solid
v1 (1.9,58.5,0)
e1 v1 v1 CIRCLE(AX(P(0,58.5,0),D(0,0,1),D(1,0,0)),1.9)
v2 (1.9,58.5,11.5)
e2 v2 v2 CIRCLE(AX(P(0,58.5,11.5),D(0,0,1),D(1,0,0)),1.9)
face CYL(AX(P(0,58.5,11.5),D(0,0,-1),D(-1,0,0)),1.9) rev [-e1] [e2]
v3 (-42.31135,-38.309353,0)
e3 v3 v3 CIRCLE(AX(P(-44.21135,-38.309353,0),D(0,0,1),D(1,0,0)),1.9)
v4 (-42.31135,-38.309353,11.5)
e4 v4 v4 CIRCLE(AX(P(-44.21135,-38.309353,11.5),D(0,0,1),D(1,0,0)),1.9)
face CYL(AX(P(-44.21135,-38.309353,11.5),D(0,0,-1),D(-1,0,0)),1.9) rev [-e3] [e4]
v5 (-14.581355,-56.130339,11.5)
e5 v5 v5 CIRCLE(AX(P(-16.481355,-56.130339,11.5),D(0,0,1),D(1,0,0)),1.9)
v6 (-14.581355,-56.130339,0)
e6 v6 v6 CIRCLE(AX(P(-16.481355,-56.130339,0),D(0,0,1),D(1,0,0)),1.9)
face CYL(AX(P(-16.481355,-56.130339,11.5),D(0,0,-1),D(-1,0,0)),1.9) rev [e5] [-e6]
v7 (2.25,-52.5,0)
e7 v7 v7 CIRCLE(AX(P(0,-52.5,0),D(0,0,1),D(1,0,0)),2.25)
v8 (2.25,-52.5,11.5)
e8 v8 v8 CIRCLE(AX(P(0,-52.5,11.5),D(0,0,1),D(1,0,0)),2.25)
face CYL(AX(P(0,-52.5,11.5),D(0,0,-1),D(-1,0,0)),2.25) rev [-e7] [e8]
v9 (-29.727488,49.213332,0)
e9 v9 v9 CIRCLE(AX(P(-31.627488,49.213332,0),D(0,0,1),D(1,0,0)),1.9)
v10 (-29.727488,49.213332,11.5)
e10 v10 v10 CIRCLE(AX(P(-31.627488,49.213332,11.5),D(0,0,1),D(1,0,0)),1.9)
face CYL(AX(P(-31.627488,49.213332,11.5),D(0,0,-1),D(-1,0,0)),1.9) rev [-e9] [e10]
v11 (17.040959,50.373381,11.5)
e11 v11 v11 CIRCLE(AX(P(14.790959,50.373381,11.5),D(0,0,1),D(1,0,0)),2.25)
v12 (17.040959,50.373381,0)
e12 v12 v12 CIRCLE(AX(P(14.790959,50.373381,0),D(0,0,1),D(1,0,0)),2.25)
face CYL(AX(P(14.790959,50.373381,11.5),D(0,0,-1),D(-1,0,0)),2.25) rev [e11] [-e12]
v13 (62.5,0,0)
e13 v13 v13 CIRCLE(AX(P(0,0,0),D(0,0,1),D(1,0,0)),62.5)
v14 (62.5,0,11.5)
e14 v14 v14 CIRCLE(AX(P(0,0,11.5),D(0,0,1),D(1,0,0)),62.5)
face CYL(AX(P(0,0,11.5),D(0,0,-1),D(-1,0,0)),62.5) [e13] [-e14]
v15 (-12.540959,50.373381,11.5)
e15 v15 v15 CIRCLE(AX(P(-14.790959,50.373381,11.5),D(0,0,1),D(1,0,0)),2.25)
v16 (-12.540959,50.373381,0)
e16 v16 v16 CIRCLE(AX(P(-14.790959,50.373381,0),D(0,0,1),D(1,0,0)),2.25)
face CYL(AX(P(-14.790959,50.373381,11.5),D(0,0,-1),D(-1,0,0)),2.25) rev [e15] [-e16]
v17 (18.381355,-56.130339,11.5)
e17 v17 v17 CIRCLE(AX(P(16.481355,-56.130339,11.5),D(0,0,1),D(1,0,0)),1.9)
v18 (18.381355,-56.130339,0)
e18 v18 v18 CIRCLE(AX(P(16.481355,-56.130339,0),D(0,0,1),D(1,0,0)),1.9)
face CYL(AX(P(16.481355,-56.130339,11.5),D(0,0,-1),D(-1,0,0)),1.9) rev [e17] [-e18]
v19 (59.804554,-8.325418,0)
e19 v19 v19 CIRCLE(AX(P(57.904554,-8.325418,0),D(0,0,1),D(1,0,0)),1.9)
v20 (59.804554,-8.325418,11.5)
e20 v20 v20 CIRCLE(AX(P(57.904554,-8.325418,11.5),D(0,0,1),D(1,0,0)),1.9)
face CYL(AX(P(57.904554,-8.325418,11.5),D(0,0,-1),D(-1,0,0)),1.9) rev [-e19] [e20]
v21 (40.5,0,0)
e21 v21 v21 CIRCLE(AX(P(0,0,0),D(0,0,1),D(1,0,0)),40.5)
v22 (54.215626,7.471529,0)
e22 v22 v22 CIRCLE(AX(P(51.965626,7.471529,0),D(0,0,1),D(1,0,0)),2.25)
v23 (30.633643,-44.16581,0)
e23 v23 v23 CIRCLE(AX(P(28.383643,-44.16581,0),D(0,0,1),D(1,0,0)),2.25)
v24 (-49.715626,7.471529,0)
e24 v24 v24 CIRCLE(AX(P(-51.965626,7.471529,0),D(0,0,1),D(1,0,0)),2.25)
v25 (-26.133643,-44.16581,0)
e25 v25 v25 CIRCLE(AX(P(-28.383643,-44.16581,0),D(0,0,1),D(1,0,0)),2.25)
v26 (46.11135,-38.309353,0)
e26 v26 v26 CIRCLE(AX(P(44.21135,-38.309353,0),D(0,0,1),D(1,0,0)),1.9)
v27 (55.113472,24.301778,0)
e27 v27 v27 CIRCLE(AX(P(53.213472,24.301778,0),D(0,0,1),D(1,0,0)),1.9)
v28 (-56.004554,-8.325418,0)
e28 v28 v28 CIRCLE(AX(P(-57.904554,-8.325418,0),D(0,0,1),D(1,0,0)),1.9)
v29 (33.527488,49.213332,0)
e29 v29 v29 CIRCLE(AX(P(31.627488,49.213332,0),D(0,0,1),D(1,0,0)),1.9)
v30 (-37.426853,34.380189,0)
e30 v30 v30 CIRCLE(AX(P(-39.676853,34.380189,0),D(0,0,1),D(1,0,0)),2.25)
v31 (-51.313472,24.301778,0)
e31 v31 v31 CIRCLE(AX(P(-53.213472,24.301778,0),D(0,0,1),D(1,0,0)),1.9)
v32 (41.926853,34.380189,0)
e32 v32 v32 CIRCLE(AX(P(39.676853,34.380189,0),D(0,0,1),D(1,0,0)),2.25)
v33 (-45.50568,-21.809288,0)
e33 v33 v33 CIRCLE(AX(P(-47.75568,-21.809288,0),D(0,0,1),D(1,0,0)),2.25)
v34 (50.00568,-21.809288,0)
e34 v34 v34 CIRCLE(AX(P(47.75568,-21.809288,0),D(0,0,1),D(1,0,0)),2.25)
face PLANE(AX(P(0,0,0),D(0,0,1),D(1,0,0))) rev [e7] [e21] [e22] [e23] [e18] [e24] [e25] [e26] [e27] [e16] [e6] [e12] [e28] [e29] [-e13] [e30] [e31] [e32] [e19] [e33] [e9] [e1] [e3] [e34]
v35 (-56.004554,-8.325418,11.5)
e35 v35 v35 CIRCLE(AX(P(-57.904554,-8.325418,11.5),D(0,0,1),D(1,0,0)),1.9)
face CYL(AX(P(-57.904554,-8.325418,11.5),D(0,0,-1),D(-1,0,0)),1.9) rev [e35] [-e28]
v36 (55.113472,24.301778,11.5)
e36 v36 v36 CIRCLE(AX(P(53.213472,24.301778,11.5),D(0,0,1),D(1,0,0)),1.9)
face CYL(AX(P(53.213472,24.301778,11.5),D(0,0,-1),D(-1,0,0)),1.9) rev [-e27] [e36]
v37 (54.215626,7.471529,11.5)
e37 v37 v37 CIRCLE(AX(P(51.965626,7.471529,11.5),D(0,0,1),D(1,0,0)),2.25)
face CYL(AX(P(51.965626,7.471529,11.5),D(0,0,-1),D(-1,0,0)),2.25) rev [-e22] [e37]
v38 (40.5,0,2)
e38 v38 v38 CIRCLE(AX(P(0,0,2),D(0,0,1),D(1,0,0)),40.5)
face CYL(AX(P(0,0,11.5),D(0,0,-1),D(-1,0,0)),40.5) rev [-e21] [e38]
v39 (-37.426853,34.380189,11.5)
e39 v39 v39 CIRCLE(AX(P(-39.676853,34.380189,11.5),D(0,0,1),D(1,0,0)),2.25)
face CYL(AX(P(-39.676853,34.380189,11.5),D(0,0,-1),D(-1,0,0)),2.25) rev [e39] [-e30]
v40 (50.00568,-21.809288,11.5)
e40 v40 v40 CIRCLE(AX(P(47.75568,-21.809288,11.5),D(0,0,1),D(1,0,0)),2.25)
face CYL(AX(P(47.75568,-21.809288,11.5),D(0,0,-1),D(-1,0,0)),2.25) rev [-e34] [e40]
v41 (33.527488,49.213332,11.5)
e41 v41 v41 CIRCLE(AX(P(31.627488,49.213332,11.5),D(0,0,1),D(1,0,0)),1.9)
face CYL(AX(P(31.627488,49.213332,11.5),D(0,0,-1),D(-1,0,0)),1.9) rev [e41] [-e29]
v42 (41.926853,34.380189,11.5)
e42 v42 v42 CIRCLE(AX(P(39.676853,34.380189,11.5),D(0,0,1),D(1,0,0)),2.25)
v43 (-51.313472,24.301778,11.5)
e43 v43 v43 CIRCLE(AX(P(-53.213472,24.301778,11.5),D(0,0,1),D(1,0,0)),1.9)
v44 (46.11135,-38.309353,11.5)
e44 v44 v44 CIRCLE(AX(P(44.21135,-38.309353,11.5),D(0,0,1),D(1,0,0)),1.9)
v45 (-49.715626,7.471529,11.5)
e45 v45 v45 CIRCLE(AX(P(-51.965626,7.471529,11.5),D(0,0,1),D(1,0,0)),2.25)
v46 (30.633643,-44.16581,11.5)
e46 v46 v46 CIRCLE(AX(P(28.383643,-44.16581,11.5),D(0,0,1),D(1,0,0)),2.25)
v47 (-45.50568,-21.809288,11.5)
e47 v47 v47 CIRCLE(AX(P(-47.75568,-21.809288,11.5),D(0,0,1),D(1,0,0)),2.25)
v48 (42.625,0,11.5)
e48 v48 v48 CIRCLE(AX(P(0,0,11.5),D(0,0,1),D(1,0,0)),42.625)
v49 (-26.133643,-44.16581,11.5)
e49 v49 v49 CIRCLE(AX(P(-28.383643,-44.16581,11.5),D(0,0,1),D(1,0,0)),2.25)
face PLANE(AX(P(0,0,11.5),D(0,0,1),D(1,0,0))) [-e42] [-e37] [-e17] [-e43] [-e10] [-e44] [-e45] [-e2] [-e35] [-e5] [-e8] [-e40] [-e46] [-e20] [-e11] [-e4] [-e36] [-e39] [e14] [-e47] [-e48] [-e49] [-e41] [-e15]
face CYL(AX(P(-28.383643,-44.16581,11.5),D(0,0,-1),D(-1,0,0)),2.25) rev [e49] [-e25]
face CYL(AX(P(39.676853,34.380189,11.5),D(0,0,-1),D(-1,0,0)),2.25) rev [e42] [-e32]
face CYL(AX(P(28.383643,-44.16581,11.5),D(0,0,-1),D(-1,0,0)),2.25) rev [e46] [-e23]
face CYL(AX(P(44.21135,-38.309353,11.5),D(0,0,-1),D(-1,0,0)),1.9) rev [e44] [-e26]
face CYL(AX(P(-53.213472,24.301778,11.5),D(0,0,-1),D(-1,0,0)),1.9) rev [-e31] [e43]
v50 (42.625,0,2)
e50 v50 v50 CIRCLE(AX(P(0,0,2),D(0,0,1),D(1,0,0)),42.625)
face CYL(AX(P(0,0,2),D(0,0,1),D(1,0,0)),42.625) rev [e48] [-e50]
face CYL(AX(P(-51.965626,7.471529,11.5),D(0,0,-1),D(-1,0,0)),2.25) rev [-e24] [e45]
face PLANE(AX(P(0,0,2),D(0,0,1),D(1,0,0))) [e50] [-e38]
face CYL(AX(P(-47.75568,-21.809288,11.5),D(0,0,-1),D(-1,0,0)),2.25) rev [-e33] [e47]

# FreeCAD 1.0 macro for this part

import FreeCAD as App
import Part
import Sketcher
Q = App.Units.Quantity

doc = App.newDocument("Part")
body = doc.addObject("PartDesign::Body", "Body")

sketch1 = body.newObject("Sketcher::SketchObject", "Sketch")
sketch1.AttachmentSupport = (doc.getObject("XY_Plane"), [""])
sketch1.MapMode = "FlatFace"
sketch1.addGeometry([
    Part.Circle(App.Vector(0, 0, 0), App.Vector(0, 0, 1), 62.5),
    Part.Circle(App.Vector(-44.21135, -38.309353, 0), App.Vector(0, 0, 1), 1.9),
    Part.Circle(App.Vector(-16.481355, -56.130339, 0), App.Vector(0, 0, 1), 1.9),
    Part.Circle(App.Vector(-28.383643, -44.16581, 0), App.Vector(0, 0, 1), 2.25),
    Part.Circle(App.Vector(0, -52.5, 0), App.Vector(0, 0, 1), 2.25),
    Part.Circle(App.Vector(-47.75568, -21.809288, 0), App.Vector(0, 0, 1), 2.25),
    Part.Circle(App.Vector(-57.904554, -8.325418, 0), App.Vector(0, 0, 1), 1.9),
    Part.Circle(App.Vector(0, 0, 0), App.Vector(0, 0, 1), 40.5),
    Part.Circle(App.Vector(16.481355, -56.130339, 0), App.Vector(0, 0, 1), 1.9),
    Part.Circle(App.Vector(28.383643, -44.16581, 0), App.Vector(0, 0, 1), 2.25),
    Part.Circle(App.Vector(44.21135, -38.309353, 0), App.Vector(0, 0, 1), 1.9),
    Part.Circle(App.Vector(47.75568, -21.809288, 0), App.Vector(0, 0, 1), 2.25),
    Part.Circle(App.Vector(57.904554, -8.325418, 0), App.Vector(0, 0, 1), 1.9),
    Part.Circle(App.Vector(-51.965626, 7.471529, 0), App.Vector(0, 0, 1), 2.25),
    Part.Circle(App.Vector(-53.213472, 24.301778, 0), App.Vector(0, 0, 1), 1.9),
    Part.Circle(App.Vector(-39.676853, 34.380189, 0), App.Vector(0, 0, 1), 2.25),
    Part.Circle(App.Vector(-31.627488, 49.213332, 0), App.Vector(0, 0, 1), 1.9),
    Part.Circle(App.Vector(-14.790959, 50.373381, 0), App.Vector(0, 0, 1), 2.25),
    Part.Circle(App.Vector(0, 58.5, 0), App.Vector(0, 0, 1), 1.9),
    Part.Circle(App.Vector(51.965626, 7.471529, 0), App.Vector(0, 0, 1), 2.25),
    Part.Circle(App.Vector(53.213472, 24.301778, 0), App.Vector(0, 0, 1), 1.9),
    Part.Circle(App.Vector(14.790959, 50.373381, 0), App.Vector(0, 0, 1), 2.25),
    Part.Circle(App.Vector(39.676853, 34.380189, 0), App.Vector(0, 0, 1), 2.25),
    Part.Circle(App.Vector(31.627488, 49.213332, 0), App.Vector(0, 0, 1), 1.9),
], False)
sketch1.addConstraint([
    Sketcher.Constraint("Coincident", 0, 3, -1, 1),
    Sketcher.Constraint("Coincident", 7, 3, -1, 1),
    Sketcher.Constraint("Equal", 1, 2),
    Sketcher.Constraint("Equal", 3, 4),
    Sketcher.Constraint("Equal", 4, 5),
    Sketcher.Constraint("Equal", 2, 6),
    Sketcher.Constraint("Equal", 6, 8),
    Sketcher.Constraint("Equal", 5, 9),
    Sketcher.Constraint("Equal", 8, 10),
    Sketcher.Constraint("Equal", 9, 11),
    Sketcher.Constraint("Equal", 10, 12),
    Sketcher.Constraint("Equal", 11, 13),
    Sketcher.Constraint("Equal", 12, 14),
    Sketcher.Constraint("Equal", 13, 15),
    Sketcher.Constraint("Equal", 14, 16),
    Sketcher.Constraint("Equal", 15, 17),
    Sketcher.Constraint("Equal", 16, 18),
    Sketcher.Constraint("Equal", 17, 19),
    Sketcher.Constraint("Equal", 18, 20),
    Sketcher.Constraint("Equal", 19, 21),
    Sketcher.Constraint("Equal", 21, 22),
    Sketcher.Constraint("Equal", 20, 23),
    Sketcher.Constraint("Symmetric", 2, 3, 8, 3, -2),
    Sketcher.Constraint("Symmetric", 3, 3, 9, 3, -2),
    Sketcher.Constraint("Symmetric", 1, 3, 10, 3, -2),
    Sketcher.Constraint("Symmetric", 5, 3, 11, 3, -2),
    Sketcher.Constraint("Symmetric", 6, 3, 12, 3, -2),
    Sketcher.Constraint("Symmetric", 13, 3, 19, 3, -2),
    Sketcher.Constraint("Symmetric", 14, 3, 20, 3, -2),
    Sketcher.Constraint("Symmetric", 17, 3, 21, 3, -2),
    Sketcher.Constraint("Symmetric", 15, 3, 22, 3, -2),
    Sketcher.Constraint("Symmetric", 16, 3, 23, 3, -2),
    Sketcher.Constraint("PointOnObject", 4, 3, -2),
    Sketcher.Constraint("PointOnObject", 18, 3, -2),
    Sketcher.Constraint("Diameter", 0, Q("125 mm")),
    Sketcher.Constraint("Diameter", 7, Q("81 mm")),
    Sketcher.Constraint("Diameter", 1, Q("3.8 mm")),
    Sketcher.Constraint("Diameter", 3, Q("4.5 mm")),
    Sketcher.Constraint("DistanceY", 4, 3, -1, 1, Q("52.5 mm")),
    Sketcher.Constraint("DistanceY", -1, 1, 18, 3, Q("58.5 mm")),
    Sketcher.Constraint("DistanceX", 6, 3, 2, 3, Q("41.4232 mm")),
    Sketcher.Constraint("DistanceX", 6, 3, 15, 3, Q("18.227702 mm")),
    Sketcher.Constraint("DistanceX", 1, 3, -1, 1, Q("44.21135 mm")),
    Sketcher.Constraint("DistanceY", 2, 3, -1, 1, Q("56.130339 mm")),
    Sketcher.Constraint("DistanceY", 3, 3, -1, 1, Q("44.16581 mm")),
    Sketcher.Constraint("DistanceX", 5, 3, -1, 1, Q("47.75568 mm")),
    Sketcher.Constraint("DistanceY", 5, 3, -1, 1, Q("21.809288 mm")),
    Sketcher.Constraint("DistanceY", 6, 3, -1, 1, Q("8.325418 mm")),
    Sketcher.Constraint("DistanceY", -1, 1, 13, 3, Q("7.471529 mm")),
    Sketcher.Constraint("DistanceX", 14, 3, -1, 1, Q("53.213472 mm")),
    Sketcher.Constraint("DistanceY", -1, 1, 14, 3, Q("24.301778 mm")),
    Sketcher.Constraint("DistanceY", -1, 1, 15, 3, Q("34.380189 mm")),
    Sketcher.Constraint("DistanceY", -1, 1, 16, 3, Q("49.213332 mm")),
    Sketcher.Constraint("DistanceX", 17, 3, -1, 1, Q("14.790959 mm")),
    Sketcher.Constraint("DistanceY", -1, 1, 17, 3, Q("50.373381 mm")),
    Sketcher.Constraint("DistanceX", 3, 3, 2, 3, Q("11.902288 mm")),
    Sketcher.Constraint("DistanceX", 2, 3, 8, 3, Q("32.962709 mm")),
    Sketcher.Constraint("DistanceX", 6, 3, 13, 3, Q("5.938929 mm")),
    Sketcher.Constraint("DistanceY", 1, 3, 13, 3, Q("45.780882 mm")),
    Sketcher.Constraint("DistanceX", 16, 3, 17, 3, Q("16.836529 mm")),
])
pad1 = body.newObject("PartDesign::Pad", "Pad")
pad1.Profile = sketch1
pad1.Length = 11.5

sketch2 = body.newObject("Sketcher::SketchObject", "Sketch001")
sketch2.AttachmentSupport = (doc.getObject("XY_Plane"), [""])
sketch2.MapMode = "FlatFace"
sketch2.AttachmentOffset = App.Placement(App.Vector(0, 0, 11.5), App.Rotation())
sketch2.addGeometry(Part.Circle(App.Vector(0, 0, 0), App.Vector(0, 0, 1), 42.625), False)
sketch2.addConstraint([
    Sketcher.Constraint("Coincident", 0, 3, -1, 1),
    Sketcher.Constraint("Diameter", 0, Q("85.25 mm")),
])
pocket1 = body.newObject("PartDesign::Pocket", "Pocket")
pocket1.Profile = sketch2
pocket1.Length = 9.5

doc.recompute()
